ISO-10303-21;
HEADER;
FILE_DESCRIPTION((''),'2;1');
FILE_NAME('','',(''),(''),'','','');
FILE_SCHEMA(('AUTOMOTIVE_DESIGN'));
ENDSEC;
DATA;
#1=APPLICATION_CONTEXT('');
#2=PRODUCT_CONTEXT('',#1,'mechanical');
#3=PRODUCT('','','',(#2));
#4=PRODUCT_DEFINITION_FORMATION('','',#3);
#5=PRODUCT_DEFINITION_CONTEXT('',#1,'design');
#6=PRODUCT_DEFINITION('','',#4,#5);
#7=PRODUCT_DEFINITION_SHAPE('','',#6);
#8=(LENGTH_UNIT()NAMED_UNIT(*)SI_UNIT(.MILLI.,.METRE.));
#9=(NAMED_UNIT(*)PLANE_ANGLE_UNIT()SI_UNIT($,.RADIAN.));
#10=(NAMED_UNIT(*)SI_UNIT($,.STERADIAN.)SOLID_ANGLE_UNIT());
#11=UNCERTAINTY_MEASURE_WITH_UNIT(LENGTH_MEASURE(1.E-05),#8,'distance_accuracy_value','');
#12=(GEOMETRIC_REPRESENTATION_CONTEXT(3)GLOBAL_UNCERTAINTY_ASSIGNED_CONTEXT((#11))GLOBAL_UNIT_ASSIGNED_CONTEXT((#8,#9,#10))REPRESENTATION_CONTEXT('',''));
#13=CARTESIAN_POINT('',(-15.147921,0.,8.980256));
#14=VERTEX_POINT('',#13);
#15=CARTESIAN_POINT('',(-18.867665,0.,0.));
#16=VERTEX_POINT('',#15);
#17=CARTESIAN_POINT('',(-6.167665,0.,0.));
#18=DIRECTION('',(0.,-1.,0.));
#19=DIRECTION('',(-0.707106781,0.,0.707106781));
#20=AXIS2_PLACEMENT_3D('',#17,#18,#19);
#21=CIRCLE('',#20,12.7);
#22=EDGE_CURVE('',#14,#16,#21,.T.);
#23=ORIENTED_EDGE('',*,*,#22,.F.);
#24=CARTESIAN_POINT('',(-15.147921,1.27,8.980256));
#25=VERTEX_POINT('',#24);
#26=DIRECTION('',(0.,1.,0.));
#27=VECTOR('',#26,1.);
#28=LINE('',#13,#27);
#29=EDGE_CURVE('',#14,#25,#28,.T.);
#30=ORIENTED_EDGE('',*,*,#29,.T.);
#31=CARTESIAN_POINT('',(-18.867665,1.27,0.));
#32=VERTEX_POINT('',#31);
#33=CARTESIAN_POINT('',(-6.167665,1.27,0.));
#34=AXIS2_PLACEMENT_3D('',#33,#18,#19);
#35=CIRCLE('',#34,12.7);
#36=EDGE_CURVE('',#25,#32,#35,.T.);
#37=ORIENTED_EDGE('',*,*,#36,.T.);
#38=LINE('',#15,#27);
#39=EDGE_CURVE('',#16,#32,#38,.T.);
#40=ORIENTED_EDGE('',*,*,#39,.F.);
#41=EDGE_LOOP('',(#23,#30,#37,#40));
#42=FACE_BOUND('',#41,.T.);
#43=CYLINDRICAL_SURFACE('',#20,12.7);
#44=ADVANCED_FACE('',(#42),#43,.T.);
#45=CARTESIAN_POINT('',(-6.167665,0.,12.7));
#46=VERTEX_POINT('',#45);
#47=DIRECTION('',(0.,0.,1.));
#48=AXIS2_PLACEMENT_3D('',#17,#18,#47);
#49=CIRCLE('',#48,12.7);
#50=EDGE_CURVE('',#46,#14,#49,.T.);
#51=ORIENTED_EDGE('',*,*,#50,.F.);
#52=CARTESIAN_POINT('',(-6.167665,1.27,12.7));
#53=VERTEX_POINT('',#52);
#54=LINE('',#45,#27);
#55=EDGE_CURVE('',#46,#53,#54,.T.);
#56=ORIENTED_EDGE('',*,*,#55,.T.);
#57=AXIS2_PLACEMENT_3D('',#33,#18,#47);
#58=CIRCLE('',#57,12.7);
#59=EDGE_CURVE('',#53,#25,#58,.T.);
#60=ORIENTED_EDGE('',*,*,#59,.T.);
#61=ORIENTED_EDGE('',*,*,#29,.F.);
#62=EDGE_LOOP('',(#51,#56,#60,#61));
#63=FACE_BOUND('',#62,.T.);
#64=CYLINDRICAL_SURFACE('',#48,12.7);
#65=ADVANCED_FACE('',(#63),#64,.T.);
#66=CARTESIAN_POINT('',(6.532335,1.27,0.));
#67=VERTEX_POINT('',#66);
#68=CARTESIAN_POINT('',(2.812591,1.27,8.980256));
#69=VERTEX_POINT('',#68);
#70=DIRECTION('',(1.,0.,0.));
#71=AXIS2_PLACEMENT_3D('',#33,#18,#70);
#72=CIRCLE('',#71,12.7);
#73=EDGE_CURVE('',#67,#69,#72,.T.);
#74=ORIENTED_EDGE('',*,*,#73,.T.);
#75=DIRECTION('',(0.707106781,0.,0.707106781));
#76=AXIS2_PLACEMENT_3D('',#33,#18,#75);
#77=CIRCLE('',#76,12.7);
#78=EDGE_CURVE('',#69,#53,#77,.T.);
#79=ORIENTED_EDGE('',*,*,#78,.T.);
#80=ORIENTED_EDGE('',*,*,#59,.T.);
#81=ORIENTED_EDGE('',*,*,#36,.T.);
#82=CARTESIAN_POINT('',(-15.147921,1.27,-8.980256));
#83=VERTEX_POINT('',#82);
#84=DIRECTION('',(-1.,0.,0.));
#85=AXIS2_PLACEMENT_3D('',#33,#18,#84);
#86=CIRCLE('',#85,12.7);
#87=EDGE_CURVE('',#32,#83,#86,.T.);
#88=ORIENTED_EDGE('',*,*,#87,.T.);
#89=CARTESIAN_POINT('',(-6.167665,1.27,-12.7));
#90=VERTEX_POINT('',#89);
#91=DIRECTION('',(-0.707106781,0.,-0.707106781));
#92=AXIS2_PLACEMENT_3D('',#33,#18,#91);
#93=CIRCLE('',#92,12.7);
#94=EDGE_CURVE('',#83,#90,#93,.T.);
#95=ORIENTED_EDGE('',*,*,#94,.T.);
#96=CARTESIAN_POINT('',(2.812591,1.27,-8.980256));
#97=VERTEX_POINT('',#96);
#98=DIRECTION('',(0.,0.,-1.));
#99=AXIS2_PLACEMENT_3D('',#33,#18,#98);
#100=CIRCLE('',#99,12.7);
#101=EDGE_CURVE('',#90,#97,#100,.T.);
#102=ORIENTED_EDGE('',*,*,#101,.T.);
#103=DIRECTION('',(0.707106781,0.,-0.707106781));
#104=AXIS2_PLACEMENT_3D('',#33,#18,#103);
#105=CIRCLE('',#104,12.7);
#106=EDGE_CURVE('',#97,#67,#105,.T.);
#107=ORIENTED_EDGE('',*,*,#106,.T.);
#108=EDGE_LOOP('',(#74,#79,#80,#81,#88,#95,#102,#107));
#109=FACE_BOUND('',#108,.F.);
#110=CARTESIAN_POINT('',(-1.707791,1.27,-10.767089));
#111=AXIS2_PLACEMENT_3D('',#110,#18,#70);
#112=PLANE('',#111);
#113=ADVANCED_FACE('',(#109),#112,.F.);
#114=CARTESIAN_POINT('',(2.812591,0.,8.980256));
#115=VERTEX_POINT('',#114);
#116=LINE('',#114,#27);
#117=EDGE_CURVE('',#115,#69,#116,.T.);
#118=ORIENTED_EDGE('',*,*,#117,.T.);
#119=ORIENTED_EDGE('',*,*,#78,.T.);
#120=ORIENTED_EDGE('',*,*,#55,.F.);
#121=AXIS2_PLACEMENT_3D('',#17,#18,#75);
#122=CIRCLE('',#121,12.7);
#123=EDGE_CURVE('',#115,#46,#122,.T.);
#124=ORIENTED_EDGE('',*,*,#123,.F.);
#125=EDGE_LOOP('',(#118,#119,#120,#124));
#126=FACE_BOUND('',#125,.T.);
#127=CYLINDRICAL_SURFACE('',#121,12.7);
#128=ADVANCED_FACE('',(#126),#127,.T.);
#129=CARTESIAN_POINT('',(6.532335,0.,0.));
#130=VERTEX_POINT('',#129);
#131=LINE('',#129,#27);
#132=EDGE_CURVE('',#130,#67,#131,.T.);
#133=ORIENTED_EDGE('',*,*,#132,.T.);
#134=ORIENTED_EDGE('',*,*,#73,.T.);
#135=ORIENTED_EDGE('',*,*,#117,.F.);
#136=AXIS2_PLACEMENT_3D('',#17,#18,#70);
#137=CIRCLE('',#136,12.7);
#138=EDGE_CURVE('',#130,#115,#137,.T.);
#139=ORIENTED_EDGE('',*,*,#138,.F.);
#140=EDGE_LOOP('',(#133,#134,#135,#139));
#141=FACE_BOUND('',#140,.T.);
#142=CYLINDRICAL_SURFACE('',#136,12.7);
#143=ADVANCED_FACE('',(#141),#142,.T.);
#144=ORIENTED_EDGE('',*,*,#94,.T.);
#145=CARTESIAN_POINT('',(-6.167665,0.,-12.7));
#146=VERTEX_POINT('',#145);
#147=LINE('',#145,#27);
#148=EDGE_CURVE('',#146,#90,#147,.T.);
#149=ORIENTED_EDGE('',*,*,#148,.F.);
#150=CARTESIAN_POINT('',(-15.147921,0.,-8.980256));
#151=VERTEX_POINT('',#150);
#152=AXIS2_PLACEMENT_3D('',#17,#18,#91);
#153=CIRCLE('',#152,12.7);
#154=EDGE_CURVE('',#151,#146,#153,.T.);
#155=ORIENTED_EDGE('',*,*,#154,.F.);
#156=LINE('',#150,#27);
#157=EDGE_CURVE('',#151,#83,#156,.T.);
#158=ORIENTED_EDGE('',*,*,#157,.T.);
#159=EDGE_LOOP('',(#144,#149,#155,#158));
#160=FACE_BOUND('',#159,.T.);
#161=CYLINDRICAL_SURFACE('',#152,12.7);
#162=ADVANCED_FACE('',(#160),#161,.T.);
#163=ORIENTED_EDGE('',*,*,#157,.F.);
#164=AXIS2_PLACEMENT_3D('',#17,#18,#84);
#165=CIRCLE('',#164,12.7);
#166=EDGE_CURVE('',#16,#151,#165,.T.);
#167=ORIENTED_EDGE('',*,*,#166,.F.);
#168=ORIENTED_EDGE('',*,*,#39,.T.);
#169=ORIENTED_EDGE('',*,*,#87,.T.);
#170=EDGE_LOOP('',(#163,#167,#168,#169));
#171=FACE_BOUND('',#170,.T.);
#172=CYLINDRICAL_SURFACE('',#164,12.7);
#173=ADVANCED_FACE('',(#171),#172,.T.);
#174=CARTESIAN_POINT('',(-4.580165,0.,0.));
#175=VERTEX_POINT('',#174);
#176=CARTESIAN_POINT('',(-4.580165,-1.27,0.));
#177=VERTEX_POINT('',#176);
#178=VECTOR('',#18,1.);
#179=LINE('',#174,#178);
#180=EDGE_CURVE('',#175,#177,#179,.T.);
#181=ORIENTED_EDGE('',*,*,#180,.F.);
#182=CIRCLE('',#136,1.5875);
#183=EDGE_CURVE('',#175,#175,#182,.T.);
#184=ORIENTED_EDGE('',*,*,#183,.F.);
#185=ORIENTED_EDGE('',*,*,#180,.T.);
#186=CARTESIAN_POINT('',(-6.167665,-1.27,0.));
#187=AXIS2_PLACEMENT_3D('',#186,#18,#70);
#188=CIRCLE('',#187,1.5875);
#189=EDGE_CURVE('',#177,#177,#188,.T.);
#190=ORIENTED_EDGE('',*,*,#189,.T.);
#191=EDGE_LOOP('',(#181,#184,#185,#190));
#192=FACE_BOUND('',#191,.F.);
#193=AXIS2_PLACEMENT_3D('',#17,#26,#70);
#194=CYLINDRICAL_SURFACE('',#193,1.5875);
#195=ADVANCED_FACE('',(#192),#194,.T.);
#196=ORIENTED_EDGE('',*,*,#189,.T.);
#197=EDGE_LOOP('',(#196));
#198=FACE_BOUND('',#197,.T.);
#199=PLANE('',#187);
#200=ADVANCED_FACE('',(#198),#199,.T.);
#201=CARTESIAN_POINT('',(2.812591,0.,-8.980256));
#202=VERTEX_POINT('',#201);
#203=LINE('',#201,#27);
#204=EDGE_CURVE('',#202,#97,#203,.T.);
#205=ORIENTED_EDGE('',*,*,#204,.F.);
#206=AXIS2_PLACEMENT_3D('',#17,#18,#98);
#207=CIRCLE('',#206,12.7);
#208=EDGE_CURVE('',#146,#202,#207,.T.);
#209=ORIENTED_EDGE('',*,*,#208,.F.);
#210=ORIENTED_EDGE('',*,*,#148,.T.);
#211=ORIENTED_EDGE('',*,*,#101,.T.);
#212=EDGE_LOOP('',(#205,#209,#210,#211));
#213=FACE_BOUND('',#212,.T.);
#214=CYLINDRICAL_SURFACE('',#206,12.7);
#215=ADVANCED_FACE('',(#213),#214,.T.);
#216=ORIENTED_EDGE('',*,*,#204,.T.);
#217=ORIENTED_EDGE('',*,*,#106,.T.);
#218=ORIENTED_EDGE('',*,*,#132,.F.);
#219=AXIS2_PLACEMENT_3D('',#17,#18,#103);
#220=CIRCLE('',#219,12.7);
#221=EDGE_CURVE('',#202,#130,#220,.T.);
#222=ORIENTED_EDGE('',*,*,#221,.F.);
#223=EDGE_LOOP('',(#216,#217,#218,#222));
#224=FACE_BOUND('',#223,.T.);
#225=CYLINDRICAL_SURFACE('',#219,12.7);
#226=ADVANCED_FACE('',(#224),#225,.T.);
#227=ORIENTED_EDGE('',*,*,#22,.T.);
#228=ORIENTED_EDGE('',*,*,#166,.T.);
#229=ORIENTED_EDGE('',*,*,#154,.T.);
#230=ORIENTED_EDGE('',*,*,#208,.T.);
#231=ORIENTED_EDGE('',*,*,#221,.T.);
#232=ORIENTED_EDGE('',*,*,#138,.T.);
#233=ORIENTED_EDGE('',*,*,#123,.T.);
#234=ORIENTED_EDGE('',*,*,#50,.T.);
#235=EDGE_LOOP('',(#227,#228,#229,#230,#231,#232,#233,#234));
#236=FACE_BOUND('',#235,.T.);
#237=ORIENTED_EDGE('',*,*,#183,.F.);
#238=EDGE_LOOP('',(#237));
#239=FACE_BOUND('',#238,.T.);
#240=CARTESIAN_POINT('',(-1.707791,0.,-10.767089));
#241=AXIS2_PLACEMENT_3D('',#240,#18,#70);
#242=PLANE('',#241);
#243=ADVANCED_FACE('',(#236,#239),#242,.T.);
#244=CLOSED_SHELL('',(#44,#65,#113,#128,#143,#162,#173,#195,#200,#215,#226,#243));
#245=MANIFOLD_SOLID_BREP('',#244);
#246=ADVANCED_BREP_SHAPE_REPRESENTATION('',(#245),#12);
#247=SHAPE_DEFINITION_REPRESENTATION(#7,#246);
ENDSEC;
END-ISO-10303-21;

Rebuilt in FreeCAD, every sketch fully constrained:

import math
import FreeCAD as App
import Part
import Sketcher
Q = App.Units.Quantity

doc = App.newDocument("Part")
body = doc.addObject("PartDesign::Body", "Body")

sketch1 = body.newObject("Sketcher::SketchObject", "Sketch")
sketch1.AttachmentSupport = (doc.getObject("XZ_Plane"), [""])
sketch1.MapMode = "FlatFace"
sketch1.addGeometry([
    Part.ArcOfCircle(Part.Circle(App.Vector(-6.167665, 0, 0), App.Vector(0, 0, 1), 12.7), math.radians(-90), math.radians(-45)),
    Part.ArcOfCircle(Part.Circle(App.Vector(-6.167665, 0, 0), App.Vector(0, 0, 1), 12.7), math.radians(-45), math.radians(0)),
    Part.ArcOfCircle(Part.Circle(App.Vector(-6.167665, 0, 0), App.Vector(0, 0, 1), 12.7), math.radians(0), math.radians(45)),
    Part.ArcOfCircle(Part.Circle(App.Vector(-6.167665, 0, 0), App.Vector(0, 0, 1), 12.7), math.radians(45), math.radians(90)),
    Part.ArcOfCircle(Part.Circle(App.Vector(-6.167665, 0, 0), App.Vector(0, 0, 1), 12.7), math.radians(90), math.radians(135)),
    Part.ArcOfCircle(Part.Circle(App.Vector(-6.167665, 0, 0), App.Vector(0, 0, 1), 12.7), math.radians(135), math.radians(180)),
    Part.ArcOfCircle(Part.Circle(App.Vector(-6.167665, 0, 0), App.Vector(0, 0, 1), 12.7), math.radians(180), math.radians(225)),
    Part.ArcOfCircle(Part.Circle(App.Vector(-6.167665, 0, 0), App.Vector(0, 0, 1), 12.7), math.radians(-135), math.radians(-90)),
], False)
sketch1.addConstraint([
    Sketcher.Constraint("Tangent", 0, 2, 1, 1),
    Sketcher.Constraint("Tangent", 1, 2, 2, 1),
    Sketcher.Constraint("Tangent", 2, 2, 3, 1),
    Sketcher.Constraint("Tangent", 3, 2, 4, 1),
    Sketcher.Constraint("Tangent", 4, 2, 5, 1),
    Sketcher.Constraint("Tangent", 5, 2, 6, 1),
    Sketcher.Constraint("Tangent", 6, 2, 7, 1),
    Sketcher.Constraint("Tangent", 7, 2, 0, 1),
    Sketcher.Constraint("Coincident", 2, 3, 0, 3),
    Sketcher.Constraint("Coincident", 4, 3, 0, 3),
    Sketcher.Constraint("Equal", 4, 5),
    Sketcher.Constraint("Symmetric", 0, 2, 2, 2, -1),
    Sketcher.Constraint("PointOnObject", 1, 2, -1),
    Sketcher.Constraint("PointOnObject", 5, 2, -1),
    Sketcher.Constraint("Horizontal", 2, 2, 4, 2),
    Sketcher.Constraint("Horizontal", 0, 2, 6, 2),
    Sketcher.Constraint("Vertical", 7, 3, 3, 2),
    Sketcher.Constraint("Vertical", 3, 2, 7, 2),
    Sketcher.Constraint("Radius", 0, Q("0.5 in")),
    Sketcher.Constraint("DistanceX", -1, 1, 0, 2, Q("2.812591 mm")),
    Sketcher.Constraint("DistanceX", 4, 2, -1, 1, Q("15.147921 mm")),
])
pad1 = body.newObject("PartDesign::Pad", "Pad")
pad1.Profile = sketch1
pad1.Length = Q("0.05 in")
pad1.Reversed = True

sketch2 = body.newObject("Sketcher::SketchObject", "Sketch001")
sketch2.AttachmentSupport = (doc.getObject("XZ_Plane"), [""])
sketch2.MapMode = "FlatFace"
sketch2.addGeometry(Part.Circle(App.Vector(-6.167665, 0, 0), App.Vector(0, 0, 1), 1.5875), False)
sketch2.addConstraint([
    Sketcher.Constraint("PointOnObject", 0, 3, -1),
    Sketcher.Constraint("Diameter", 0, Q("0.125 in")),
    Sketcher.Constraint("DistanceX", 0, 3, -1, 1, Q("6.167665 mm")),
])
pad2 = body.newObject("PartDesign::Pad", "Pad001")
pad2.Profile = sketch2
pad2.Length = Q("0.05 in")

doc.recompute()
